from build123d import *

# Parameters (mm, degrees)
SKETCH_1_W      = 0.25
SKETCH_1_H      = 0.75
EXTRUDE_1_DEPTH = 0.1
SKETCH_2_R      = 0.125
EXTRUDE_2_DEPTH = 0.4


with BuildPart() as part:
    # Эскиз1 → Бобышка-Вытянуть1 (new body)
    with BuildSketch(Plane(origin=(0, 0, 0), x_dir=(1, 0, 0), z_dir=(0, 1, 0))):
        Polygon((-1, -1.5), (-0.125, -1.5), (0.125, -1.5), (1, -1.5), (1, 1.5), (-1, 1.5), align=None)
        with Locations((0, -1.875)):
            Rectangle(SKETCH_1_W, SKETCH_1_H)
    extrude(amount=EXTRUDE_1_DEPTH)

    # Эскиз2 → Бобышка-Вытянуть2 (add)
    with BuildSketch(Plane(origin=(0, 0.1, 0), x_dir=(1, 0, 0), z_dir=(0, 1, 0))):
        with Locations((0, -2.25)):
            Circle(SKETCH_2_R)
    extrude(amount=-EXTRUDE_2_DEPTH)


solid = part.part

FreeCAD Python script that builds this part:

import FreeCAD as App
import Part
import Sketcher
from FreeCAD import Vector
Q = App.Units.Quantity


def add_polygon(sketch, points):
    """Adds a closed chain of lines whose ends are joined by coincident constraints."""
    first, n = sketch.GeometryCount, len(points)
    for a, b in zip(points, points[1:] + points[:1]):
        sketch.addGeometry(Part.LineSegment(App.Vector(*a, 0), App.Vector(*b, 0)), False)
    for i in range(n):
        sketch.addConstraint(Sketcher.Constraint("Coincident", first + i, 2, first + (i + 1) % n, 1))

doc = App.newDocument("Part")
body = doc.addObject("PartDesign::Body", "Body")

# Sketch on XZ plane
sketch1 = body.newObject("Sketcher::SketchObject", "Sketch")
sketch1.AttachmentSupport = (doc.getObject("XZ_Plane"), [""])
sketch1.MapMode = "FlatFace"
add_polygon(sketch1, [(-1, 1.5), (-0.12, 1.5), (-0.12, 2.25), (0.12, 2.25), (0.12, 1.5), (1, 1.5), (1, -1.5), (-1, -1.5)])  # lines 0-7
sketch1.addConstraint([
    Sketcher.Constraint("Horizontal", 0),
    Sketcher.Constraint("Vertical", 1),
    Sketcher.Constraint("Horizontal", 2),
    Sketcher.Constraint("Vertical", 3),
    Sketcher.Constraint("Horizontal", 4),
    Sketcher.Constraint("Vertical", 5),
    Sketcher.Constraint("Horizontal", 6),
    Sketcher.Constraint("Vertical", 7),
    Sketcher.Constraint("Symmetric", 4, 2, 6, 2, -1, 1),
    Sketcher.Constraint("Symmetric", 0, 2, 3, 2, -2),
    Sketcher.Constraint("DistanceX", 6, 2, 6, 1, Q("2 mm")),
    Sketcher.Constraint("DistanceY", 5, 2, 5, 1, Q("3 mm")),
    Sketcher.Constraint("DistanceX", 2, 1, 2, 2, Q("0.25 mm")),
    Sketcher.Constraint("DistanceY", 1, 1, 1, 2, Q("0.75 mm")),
])
pad1 = body.newObject("PartDesign::Pad", "Pad")
pad1.Profile = sketch1
pad1.Length = 0.1
pad1.Reversed = True

# Sketch on XZ plane
sketch2 = body.newObject("Sketcher::SketchObject", "Sketch001")
sketch2.AttachmentSupport = (doc.getObject("XZ_Plane"), [""])
sketch2.MapMode = "FlatFace"
sketch2.AttachmentOffset = App.Placement(Vector(0, 0, -0.1), App.Rotation())
sketch2.addGeometry(Part.Circle(Vector(0, 2.25, 0), Vector(0, 0, 1), 0.12), False)
sketch2.addConstraint([
    Sketcher.Constraint("PointOnObject", 0, 3, -2),
    Sketcher.Constraint("Diameter", 0, Q("0.25 mm")),
    Sketcher.Constraint("DistanceY", -1, 1, 0, 3, Q("2.25 mm")),
])
pad2 = body.newObject("PartDesign::Pad", "Pad001")
pad2.Profile = sketch2
pad2.Length = 0.4

doc.recompute()
